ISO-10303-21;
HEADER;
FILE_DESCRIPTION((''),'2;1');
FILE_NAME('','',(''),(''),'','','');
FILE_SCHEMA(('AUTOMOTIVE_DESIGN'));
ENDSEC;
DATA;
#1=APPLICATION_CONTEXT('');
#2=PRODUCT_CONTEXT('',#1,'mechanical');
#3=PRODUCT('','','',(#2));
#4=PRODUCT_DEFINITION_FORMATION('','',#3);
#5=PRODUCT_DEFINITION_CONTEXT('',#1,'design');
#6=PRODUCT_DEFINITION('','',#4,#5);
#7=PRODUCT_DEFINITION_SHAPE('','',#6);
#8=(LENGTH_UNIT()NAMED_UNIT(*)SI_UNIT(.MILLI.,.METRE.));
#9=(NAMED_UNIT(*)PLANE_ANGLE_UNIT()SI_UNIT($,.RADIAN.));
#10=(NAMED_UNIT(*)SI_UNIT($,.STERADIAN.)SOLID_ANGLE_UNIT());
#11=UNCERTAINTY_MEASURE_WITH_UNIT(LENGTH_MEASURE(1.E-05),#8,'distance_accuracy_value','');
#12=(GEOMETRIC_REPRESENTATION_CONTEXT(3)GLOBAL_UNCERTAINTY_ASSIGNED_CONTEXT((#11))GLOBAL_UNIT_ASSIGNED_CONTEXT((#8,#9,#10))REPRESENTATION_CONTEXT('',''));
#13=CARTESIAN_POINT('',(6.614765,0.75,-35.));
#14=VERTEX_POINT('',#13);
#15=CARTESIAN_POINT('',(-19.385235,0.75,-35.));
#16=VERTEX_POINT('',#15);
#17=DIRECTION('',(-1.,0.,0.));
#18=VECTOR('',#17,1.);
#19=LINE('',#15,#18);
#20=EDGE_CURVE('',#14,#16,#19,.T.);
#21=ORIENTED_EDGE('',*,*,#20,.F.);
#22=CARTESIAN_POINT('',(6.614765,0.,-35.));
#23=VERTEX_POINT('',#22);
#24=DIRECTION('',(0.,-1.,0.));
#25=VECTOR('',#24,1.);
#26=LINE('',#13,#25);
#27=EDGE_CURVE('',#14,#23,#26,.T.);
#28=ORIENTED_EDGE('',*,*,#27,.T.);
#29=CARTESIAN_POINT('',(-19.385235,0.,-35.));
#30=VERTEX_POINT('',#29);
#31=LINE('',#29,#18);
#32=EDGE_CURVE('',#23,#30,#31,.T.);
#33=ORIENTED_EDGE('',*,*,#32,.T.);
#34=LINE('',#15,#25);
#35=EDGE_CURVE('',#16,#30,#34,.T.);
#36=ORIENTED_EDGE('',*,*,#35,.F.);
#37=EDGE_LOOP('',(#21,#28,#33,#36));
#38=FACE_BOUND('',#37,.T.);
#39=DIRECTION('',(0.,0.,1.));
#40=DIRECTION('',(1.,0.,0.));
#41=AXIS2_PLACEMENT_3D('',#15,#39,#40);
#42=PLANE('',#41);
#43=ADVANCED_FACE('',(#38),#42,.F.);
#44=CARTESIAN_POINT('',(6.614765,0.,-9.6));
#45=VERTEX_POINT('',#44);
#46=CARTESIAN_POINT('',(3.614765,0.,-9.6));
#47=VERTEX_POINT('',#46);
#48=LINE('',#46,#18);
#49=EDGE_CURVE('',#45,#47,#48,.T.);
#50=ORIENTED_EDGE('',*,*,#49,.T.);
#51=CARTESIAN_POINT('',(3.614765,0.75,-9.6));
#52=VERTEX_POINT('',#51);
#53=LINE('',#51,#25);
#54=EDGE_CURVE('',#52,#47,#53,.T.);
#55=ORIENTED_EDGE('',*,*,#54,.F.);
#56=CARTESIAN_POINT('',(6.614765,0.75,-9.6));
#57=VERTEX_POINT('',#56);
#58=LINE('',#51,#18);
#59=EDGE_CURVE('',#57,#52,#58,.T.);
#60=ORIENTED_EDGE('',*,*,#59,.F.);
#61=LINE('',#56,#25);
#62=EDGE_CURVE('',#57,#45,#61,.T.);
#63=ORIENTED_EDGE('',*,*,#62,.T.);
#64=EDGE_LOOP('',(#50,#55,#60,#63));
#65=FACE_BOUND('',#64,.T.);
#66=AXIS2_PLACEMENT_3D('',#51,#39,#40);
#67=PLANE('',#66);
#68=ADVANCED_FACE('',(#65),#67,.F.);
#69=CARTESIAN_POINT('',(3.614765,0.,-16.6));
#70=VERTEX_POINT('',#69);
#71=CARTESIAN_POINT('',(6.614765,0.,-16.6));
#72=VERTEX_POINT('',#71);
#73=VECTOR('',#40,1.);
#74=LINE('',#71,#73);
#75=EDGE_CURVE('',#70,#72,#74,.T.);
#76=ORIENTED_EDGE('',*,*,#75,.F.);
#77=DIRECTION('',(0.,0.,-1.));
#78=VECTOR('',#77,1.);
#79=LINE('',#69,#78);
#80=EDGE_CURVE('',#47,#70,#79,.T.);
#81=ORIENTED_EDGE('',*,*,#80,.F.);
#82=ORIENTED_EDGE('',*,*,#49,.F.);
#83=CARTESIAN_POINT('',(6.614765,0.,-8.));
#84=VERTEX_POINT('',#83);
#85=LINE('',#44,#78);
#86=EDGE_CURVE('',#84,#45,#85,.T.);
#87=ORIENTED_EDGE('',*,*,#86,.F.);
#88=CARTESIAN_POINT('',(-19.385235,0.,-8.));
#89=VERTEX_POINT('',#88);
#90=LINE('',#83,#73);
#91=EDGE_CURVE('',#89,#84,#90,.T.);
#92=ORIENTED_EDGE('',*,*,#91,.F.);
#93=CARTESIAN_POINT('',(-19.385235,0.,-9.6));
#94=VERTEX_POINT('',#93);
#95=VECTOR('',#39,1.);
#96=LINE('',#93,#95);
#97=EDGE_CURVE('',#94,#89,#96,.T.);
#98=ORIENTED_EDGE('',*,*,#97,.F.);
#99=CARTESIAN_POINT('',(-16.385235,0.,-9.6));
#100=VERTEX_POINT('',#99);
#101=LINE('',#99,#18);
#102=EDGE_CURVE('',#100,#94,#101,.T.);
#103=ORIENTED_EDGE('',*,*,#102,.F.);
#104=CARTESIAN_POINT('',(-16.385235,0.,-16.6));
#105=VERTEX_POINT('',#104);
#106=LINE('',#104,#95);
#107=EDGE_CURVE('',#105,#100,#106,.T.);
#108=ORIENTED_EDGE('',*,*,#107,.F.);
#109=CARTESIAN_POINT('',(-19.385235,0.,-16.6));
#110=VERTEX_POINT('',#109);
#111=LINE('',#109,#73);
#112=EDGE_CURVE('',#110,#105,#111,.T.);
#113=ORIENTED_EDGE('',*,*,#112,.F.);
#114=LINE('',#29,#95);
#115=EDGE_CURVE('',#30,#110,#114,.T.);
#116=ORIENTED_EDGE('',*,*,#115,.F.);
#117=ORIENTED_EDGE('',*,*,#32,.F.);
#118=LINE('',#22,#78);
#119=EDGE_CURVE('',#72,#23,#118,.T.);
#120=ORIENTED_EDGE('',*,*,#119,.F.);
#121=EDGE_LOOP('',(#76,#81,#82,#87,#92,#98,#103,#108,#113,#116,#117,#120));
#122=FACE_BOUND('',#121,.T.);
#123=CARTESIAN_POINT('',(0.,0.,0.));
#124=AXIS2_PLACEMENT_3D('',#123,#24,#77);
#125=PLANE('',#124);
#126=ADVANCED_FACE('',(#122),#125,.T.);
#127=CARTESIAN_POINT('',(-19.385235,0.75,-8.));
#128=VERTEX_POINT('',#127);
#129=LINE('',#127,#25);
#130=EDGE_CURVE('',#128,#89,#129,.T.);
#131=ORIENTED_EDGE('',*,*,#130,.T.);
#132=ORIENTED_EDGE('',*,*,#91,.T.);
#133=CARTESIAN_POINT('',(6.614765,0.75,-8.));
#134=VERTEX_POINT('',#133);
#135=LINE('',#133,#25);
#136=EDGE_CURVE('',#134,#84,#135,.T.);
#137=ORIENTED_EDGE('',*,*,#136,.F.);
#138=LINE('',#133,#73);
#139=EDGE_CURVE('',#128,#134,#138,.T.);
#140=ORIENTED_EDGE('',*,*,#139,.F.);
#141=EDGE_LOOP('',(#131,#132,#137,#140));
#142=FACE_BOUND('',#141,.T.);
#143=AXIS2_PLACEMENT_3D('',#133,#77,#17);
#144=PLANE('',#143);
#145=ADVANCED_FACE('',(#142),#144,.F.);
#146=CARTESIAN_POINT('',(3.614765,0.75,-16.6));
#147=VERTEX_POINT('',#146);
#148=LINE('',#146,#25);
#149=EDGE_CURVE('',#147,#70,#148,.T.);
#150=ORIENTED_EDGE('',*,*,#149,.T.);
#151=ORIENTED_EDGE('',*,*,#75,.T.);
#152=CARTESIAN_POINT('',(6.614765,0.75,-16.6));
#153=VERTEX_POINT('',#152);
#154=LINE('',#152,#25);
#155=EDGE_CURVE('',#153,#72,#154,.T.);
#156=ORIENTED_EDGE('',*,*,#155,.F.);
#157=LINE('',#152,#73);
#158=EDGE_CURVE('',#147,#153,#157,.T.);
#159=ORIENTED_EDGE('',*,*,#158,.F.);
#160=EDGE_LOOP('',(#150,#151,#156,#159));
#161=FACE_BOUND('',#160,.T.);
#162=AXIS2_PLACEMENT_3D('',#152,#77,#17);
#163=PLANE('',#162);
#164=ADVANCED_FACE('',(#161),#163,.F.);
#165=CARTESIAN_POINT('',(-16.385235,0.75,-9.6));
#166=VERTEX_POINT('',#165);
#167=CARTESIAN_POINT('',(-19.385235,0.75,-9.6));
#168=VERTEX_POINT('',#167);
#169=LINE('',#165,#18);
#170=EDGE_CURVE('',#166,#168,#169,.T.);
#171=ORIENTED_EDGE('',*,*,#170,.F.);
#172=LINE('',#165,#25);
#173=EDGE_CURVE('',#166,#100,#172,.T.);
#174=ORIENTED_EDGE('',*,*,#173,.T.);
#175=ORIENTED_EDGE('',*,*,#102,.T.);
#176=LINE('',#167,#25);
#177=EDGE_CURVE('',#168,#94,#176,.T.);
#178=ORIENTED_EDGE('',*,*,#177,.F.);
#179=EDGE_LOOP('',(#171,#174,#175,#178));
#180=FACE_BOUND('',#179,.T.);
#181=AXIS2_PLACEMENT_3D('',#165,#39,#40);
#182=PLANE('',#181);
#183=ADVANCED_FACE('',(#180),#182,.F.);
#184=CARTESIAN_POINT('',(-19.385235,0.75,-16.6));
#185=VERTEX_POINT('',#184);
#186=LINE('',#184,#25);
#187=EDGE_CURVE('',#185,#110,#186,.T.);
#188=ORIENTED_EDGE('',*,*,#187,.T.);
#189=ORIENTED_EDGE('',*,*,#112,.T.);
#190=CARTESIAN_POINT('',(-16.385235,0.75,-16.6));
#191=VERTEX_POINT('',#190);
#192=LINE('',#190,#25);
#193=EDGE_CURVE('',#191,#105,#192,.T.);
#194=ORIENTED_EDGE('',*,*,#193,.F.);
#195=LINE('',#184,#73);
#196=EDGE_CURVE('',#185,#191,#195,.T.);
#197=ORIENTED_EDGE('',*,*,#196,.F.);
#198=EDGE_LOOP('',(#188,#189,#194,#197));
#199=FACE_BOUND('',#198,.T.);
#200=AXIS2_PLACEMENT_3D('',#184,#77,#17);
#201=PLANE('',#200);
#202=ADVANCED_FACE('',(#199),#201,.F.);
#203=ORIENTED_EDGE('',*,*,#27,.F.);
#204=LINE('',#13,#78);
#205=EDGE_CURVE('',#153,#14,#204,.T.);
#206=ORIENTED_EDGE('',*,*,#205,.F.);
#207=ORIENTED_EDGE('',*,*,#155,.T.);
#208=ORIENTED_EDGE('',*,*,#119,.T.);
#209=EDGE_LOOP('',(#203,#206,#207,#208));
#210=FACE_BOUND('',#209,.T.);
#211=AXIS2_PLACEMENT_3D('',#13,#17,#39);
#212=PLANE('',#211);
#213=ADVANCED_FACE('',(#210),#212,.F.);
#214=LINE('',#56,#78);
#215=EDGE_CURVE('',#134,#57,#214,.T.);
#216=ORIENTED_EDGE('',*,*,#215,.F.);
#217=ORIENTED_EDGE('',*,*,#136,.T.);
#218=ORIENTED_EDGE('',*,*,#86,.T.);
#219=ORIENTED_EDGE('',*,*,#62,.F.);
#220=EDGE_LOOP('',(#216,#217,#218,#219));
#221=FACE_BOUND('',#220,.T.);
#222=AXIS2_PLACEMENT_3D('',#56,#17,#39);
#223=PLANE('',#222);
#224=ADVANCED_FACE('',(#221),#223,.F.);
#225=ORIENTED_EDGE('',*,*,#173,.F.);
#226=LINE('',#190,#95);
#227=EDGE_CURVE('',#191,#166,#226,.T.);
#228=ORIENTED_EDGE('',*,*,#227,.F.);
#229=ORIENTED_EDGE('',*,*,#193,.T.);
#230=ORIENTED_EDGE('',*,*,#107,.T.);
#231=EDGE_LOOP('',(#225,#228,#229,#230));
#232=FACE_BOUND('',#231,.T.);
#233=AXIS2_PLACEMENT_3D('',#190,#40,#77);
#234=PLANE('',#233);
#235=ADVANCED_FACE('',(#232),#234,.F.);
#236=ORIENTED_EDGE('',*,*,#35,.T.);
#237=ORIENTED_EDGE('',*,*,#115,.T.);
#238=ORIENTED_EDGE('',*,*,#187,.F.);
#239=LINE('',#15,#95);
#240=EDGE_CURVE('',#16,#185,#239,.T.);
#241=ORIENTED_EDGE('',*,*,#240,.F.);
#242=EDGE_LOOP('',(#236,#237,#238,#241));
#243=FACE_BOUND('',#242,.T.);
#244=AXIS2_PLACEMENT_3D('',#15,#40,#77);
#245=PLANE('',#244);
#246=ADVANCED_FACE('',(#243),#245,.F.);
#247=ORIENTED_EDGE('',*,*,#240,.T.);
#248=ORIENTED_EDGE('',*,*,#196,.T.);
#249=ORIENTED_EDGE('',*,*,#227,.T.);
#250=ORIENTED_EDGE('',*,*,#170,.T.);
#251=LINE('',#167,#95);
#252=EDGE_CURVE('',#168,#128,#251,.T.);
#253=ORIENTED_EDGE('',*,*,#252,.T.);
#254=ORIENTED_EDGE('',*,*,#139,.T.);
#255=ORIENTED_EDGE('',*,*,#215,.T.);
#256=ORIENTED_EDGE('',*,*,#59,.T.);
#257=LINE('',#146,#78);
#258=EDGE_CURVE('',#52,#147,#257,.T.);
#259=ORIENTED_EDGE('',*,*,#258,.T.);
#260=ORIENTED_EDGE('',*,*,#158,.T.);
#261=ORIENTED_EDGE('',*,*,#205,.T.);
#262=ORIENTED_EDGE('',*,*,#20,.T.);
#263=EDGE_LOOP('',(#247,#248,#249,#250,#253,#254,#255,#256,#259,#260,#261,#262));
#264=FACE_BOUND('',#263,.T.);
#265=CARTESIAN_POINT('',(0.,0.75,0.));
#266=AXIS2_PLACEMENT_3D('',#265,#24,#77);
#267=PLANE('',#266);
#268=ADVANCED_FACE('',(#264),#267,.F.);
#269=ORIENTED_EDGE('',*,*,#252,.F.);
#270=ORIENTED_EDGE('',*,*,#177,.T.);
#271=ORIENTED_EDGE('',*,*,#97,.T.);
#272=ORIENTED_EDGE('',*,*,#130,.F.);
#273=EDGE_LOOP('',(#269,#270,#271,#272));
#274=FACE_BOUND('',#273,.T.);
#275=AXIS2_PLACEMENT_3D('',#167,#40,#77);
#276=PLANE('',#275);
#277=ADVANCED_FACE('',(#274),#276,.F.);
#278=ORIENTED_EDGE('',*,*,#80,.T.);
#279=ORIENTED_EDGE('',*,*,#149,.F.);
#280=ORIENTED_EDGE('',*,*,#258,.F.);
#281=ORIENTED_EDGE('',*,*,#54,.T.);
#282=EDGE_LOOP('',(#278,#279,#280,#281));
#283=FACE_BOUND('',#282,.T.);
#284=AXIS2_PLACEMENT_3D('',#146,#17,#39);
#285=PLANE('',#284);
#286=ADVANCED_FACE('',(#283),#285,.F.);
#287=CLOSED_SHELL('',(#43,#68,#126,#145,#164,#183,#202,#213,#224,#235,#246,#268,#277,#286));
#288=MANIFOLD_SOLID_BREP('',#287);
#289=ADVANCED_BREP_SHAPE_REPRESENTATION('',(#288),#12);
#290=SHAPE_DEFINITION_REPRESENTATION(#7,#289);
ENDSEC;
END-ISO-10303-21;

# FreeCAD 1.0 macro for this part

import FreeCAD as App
import Part
import Sketcher
from FreeCAD import Vector

doc = App.newDocument("Part")
params = doc.addObject("Spreadsheet::Sheet", "Params")
for row, (alias, value) in enumerate([
    ("sketch1_width", "26 mm"),
    ("sketch1_width2", "3 mm"),
    ("sketch1_height", "7 mm"),
    ("sketch1_height2", "18.4 mm"),
    ("sketch1_height3", "1.6 mm"),
    ("pad1_length", "0.75 mm"),
], start=1):
    params.set(f"A{row}", alias)
    params.set(f"B{row}", "=" + value)
    params.setAlias(f"B{row}", alias)

body = doc.addObject("PartDesign::Body", "Body")

sketch1 = body.newObject("Sketcher::SketchObject", "Sketch")
sketch1.AttachmentSupport = (doc.getObject("XZ_Plane"), [""])
sketch1.MapMode = "FlatFace"
sketch1.addGeometry([
    Part.LineSegment(Vector(6.6, -35, 0), Vector(-19.4, -35, 0)),
    Part.LineSegment(Vector(-19.4, -35, 0), Vector(-19.4, -16.6, 0)),
    Part.LineSegment(Vector(-19.4, -16.6, 0), Vector(-16.4, -16.6, 0)),
    Part.LineSegment(Vector(-16.4, -16.6, 0), Vector(-16.4, -9.6, 0)),
    Part.LineSegment(Vector(-16.4, -9.6, 0), Vector(-19.4, -9.6, 0)),
    Part.LineSegment(Vector(-19.4, -9.6, 0), Vector(-19.4, -8, 0)),
    Part.LineSegment(Vector(-19.4, -8, 0), Vector(6.6, -8, 0)),
    Part.LineSegment(Vector(6.6, -8, 0), Vector(6.6, -9.6, 0)),
    Part.LineSegment(Vector(6.6, -9.6, 0), Vector(3.6, -9.6, 0)),
    Part.LineSegment(Vector(3.6, -9.6, 0), Vector(3.6, -16.6, 0)),
    Part.LineSegment(Vector(3.6, -16.6, 0), Vector(6.6, -16.6, 0)),
    Part.LineSegment(Vector(6.6, -16.6, 0), Vector(6.6, -35, 0)),
], False)
sketch1.addConstraint([
    Sketcher.Constraint("Coincident", 0, 2, 1, 1),
    Sketcher.Constraint("Coincident", 1, 2, 2, 1),
    Sketcher.Constraint("Coincident", 2, 2, 3, 1),
    Sketcher.Constraint("Coincident", 3, 2, 4, 1),
    Sketcher.Constraint("Coincident", 4, 2, 5, 1),
    Sketcher.Constraint("Coincident", 5, 2, 6, 1),
    Sketcher.Constraint("Coincident", 6, 2, 7, 1),
    Sketcher.Constraint("Coincident", 7, 2, 8, 1),
    Sketcher.Constraint("Coincident", 8, 2, 9, 1),
    Sketcher.Constraint("Coincident", 9, 2, 10, 1),
    Sketcher.Constraint("Coincident", 10, 2, 11, 1),
    Sketcher.Constraint("Coincident", 11, 2, 0, 1),
    Sketcher.Constraint("Horizontal", 0),
    Sketcher.Constraint("Vertical", 1),
    Sketcher.Constraint("Horizontal", 2),
    Sketcher.Constraint("Vertical", 3),
    Sketcher.Constraint("Horizontal", 4),
    Sketcher.Constraint("Vertical", 5),
    Sketcher.Constraint("Horizontal", 6),
    Sketcher.Constraint("Vertical", 7),
    Sketcher.Constraint("Horizontal", 8),
    Sketcher.Constraint("Vertical", 9),
    Sketcher.Constraint("Horizontal", 10),
    Sketcher.Constraint("Vertical", 11),
    Sketcher.Constraint("Horizontal", 4, 2, 7, 2),
    Sketcher.Constraint("Horizontal", 2, 2, 9, 2),
    Sketcher.Constraint("Vertical", 1, 2, 4, 2),
    Sketcher.Constraint("Vertical", 7, 2, 10, 2),
    Sketcher.Constraint("Equal", 4, 8),
    Sketcher.Constraint("DistanceX", 0, 2, 0, 1, 26.0),
    Sketcher.Constraint("DistanceX", 2, 1, 2, 2, 3.0),
    Sketcher.Constraint("DistanceY", 3, 1, 3, 2, 7.0),
    Sketcher.Constraint("DistanceY", 1, 1, 1, 2, 18.4),
    Sketcher.Constraint("DistanceY", 5, 1, 5, 2, 1.6),
    Sketcher.Constraint("DistanceY", 0, 2, -1, 1, 35.0),
    Sketcher.Constraint("DistanceX", 0, 2, -1, 1, 19.385235),
])
sketch1.setExpression("Constraints[29]", "Params.sketch1_width")
sketch1.setExpression("Constraints[30]", "Params.sketch1_width2")
sketch1.setExpression("Constraints[31]", "Params.sketch1_height")
sketch1.setExpression("Constraints[32]", "Params.sketch1_height2")
sketch1.setExpression("Constraints[33]", "Params.sketch1_height3")
pad1 = body.newObject("PartDesign::Pad", "Pad")
pad1.Profile = sketch1
pad1.setExpression("Length", "Params.pad1_length")
pad1.Reversed = True

doc.recompute()
